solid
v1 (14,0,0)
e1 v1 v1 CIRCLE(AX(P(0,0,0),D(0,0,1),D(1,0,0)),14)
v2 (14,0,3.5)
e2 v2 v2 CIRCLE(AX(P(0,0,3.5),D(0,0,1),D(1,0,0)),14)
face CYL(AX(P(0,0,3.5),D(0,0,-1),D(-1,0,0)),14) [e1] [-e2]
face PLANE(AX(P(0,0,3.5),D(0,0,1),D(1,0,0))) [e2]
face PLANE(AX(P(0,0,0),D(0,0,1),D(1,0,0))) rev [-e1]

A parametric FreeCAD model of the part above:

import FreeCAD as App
import Part
import Sketcher
from FreeCAD import Vector

doc = App.newDocument("Part")
body = doc.addObject("PartDesign::Body", "Body")

sketch1 = doc.addObject("Sketcher::SketchObject", "Sketch")
body.addObject(sketch1)
sketch1.AttachmentSupport = (doc.XY_Plane, [""])
sketch1.MapMode = "FlatFace"
sketch1.addGeometry(Part.Circle(Vector(0, 0, 0), Vector(0, 0, 1), 14), False)
sketch1.addConstraint(Sketcher.Constraint("Coincident", 0, 3, -1, 1))
sketch1.addConstraint(Sketcher.Constraint("Diameter", 0, 28.0))
pad1 = doc.addObject("PartDesign::Pad", "Pad")
body.addObject(pad1)
pad1.Profile = sketch1
pad1.Length = 3.5

doc.recompute()
